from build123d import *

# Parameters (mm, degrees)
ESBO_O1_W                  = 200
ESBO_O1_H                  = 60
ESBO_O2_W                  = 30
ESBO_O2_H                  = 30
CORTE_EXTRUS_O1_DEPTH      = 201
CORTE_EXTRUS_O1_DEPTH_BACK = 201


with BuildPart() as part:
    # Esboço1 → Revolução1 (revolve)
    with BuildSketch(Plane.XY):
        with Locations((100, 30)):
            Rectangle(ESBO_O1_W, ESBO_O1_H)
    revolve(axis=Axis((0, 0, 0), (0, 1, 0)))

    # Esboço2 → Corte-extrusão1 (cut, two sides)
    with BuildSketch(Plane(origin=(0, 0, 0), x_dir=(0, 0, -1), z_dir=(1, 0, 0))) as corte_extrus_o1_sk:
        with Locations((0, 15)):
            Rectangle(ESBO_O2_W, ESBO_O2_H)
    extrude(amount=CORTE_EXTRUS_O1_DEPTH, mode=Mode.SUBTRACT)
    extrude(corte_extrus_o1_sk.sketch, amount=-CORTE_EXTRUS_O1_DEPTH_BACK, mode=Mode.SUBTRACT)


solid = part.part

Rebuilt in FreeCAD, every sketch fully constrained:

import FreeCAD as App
import Part
import Sketcher

V = App.Vector

doc = App.newDocument("Part")
body = doc.addObject("PartDesign::Body", "Body")

# Sketch on XY plane
sketch1 = doc.addObject("Sketcher::SketchObject", "Sketch")
body.addObject(sketch1)
sketch1.AttachmentSupport = (doc.XY_Plane, [""])
sketch1.MapMode = "FlatFace"
sketch1.addGeometry([
    Part.LineSegment(V(0, 60, 0), V(0, 0, 0)),
    Part.LineSegment(V(0, 0, 0), V(200, 0, 0)),
    Part.LineSegment(V(200, 0, 0), V(200, 60, 0)),
    Part.LineSegment(V(200, 60, 0), V(0, 60, 0)),
], False)
sketch1.addConstraint([
    Sketcher.Constraint("Coincident", 0, 2, 1, 1),
    Sketcher.Constraint("Coincident", 1, 2, 2, 1),
    Sketcher.Constraint("Coincident", 2, 2, 3, 1),
    Sketcher.Constraint("Coincident", 3, 2, 0, 1),
    Sketcher.Constraint("Vertical", 0),
    Sketcher.Constraint("Horizontal", 1),
    Sketcher.Constraint("Vertical", 2),
    Sketcher.Constraint("Horizontal", 3),
    Sketcher.Constraint("Coincident", 0, 2, -1, 1),
    Sketcher.Constraint("DistanceX", 1, 1, 1, 2, 200.0),
    Sketcher.Constraint("DistanceY", 0, 2, 0, 1, 60.0),
])
revolution = doc.addObject("PartDesign::Revolution", "Revolution")
body.addObject(revolution)
revolution.Profile = sketch1
revolution.ReferenceAxis = (sketch1, ["V_Axis"])
revolution.Angle = 360

# Sketch on YZ plane
sketch2 = doc.addObject("Sketcher::SketchObject", "Sketch001")
body.addObject(sketch2)
sketch2.AttachmentSupport = (doc.YZ_Plane, [""])
sketch2.MapMode = "FlatFace"
sketch2.addGeometry([
    Part.LineSegment(V(30, 15, 0), V(0, 15, 0)),
    Part.LineSegment(V(0, 15, 0), V(0, -15, 0)),
    Part.LineSegment(V(0, -15, 0), V(30, -15, 0)),
    Part.LineSegment(V(30, -15, 0), V(30, 15, 0)),
], False)
sketch2.addConstraint([
    Sketcher.Constraint("Coincident", 0, 2, 1, 1),
    Sketcher.Constraint("Coincident", 1, 2, 2, 1),
    Sketcher.Constraint("Coincident", 2, 2, 3, 1),
    Sketcher.Constraint("Coincident", 3, 2, 0, 1),
    Sketcher.Constraint("Horizontal", 0),
    Sketcher.Constraint("Vertical", 1),
    Sketcher.Constraint("Horizontal", 2),
    Sketcher.Constraint("Vertical", 3),
    Sketcher.Constraint("Symmetric", 0, 2, 1, 2, -1, 1),
    Sketcher.Constraint("Equal", 2, 1),
    Sketcher.Constraint("DistanceX", 0, 2, 0, 1, 30.0),
])
pocket1 = doc.addObject("PartDesign::Pocket", "Pocket")
body.addObject(pocket1)
pocket1.Profile = sketch2
pocket1.Type = "ThroughAll"
pocket1.Midplane = True

doc.recompute()
